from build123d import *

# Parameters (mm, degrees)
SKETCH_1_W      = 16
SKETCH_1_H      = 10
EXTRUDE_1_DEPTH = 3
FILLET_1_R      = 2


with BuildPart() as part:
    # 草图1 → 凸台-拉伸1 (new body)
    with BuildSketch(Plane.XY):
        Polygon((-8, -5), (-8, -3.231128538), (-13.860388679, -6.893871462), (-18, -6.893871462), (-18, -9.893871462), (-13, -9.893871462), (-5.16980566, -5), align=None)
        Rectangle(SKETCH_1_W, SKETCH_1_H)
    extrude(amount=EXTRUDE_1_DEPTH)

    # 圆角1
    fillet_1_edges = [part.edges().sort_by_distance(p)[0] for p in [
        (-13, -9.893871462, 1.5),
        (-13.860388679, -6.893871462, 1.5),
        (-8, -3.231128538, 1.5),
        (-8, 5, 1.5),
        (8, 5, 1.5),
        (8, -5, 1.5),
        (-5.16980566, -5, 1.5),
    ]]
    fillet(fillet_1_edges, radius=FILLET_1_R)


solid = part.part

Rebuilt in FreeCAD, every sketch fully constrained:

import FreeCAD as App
import Part
import Sketcher
from FreeCAD import Vector
Q = App.Units.Quantity


def edges_at(feature, points):
    """Names of the edges that pass closest to the given points."""
    edges = feature.Shape.Edges
    near = lambda p: min(range(len(edges)), key=lambda i: edges[i].distToShape(Part.Vertex(*p))[0])
    return sorted({f"Edge{near(p) + 1}" for p in points})

doc = App.newDocument("Part")
body = doc.addObject("PartDesign::Body", "Body")

# Sketch on XY plane
sketch1 = body.newObject("Sketcher::SketchObject", "Sketch")
sketch1.AttachmentSupport = (doc.getObject("XY_Plane"), [""])
sketch1.MapMode = "FlatFace"
sketch1.addGeometry([
    Part.LineSegment(Vector(-8, -3.231129, 0), Vector(-13.860389, -6.893871, 0)),  # 0
    Part.LineSegment(Vector(-13.860389, -6.893871, 0), Vector(-18, -6.893871, 0)),  # 1
    Part.LineSegment(Vector(-18, -6.893871, 0), Vector(-18, -9.893871, 0)),  # 2
    Part.LineSegment(Vector(-18, -9.893871, 0), Vector(-13, -9.893871, 0)),  # 3
    Part.LineSegment(Vector(-13, -9.893871, 0), Vector(-5.169806, -5, 0)),  # 4
    Part.LineSegment(Vector(-5.169806, -5, 0), Vector(8, -5, 0)),  # 5
    Part.LineSegment(Vector(8, -5, 0), Vector(8, 5, 0)),  # 6
    Part.LineSegment(Vector(8, 5, 0), Vector(-8, 5, 0)),  # 7
    Part.LineSegment(Vector(-8, 5, 0), Vector(-8, -3.231129, 0)),  # 8
], False)
sketch1.addConstraint([
    Sketcher.Constraint("Coincident", 0, 2, 1, 1),
    Sketcher.Constraint("Coincident", 1, 2, 2, 1),
    Sketcher.Constraint("Coincident", 2, 2, 3, 1),
    Sketcher.Constraint("Coincident", 3, 2, 4, 1),
    Sketcher.Constraint("Coincident", 4, 2, 5, 1),
    Sketcher.Constraint("Coincident", 5, 2, 6, 1),
    Sketcher.Constraint("Coincident", 6, 2, 7, 1),
    Sketcher.Constraint("Coincident", 7, 2, 8, 1),
    Sketcher.Constraint("Coincident", 8, 2, 0, 1),
    Sketcher.Constraint("Horizontal", 1),
    Sketcher.Constraint("Vertical", 2),
    Sketcher.Constraint("Horizontal", 3),
    Sketcher.Constraint("Horizontal", 5),
    Sketcher.Constraint("Vertical", 6),
    Sketcher.Constraint("Horizontal", 7),
    Sketcher.Constraint("Vertical", 8),
    Sketcher.Constraint("Symmetric", 5, 2, 7, 2, -1, 1),
    Sketcher.Constraint("Parallel", 0, 4),
    Sketcher.Constraint("DistanceX", 3, 1, 3, 2, Q("5 mm")),
    Sketcher.Constraint("DistanceX", 7, 2, 7, 1, Q("16 mm")),
    Sketcher.Constraint("DistanceY", 2, 2, 2, 1, Q("3 mm")),
    Sketcher.Constraint("DistanceY", 6, 1, 6, 2, Q("10 mm")),
    Sketcher.Constraint("DistanceX", 1, 2, -1, 1, Q("18 mm")),
    Sketcher.Constraint("DistanceX", 1, 2, 1, 1, Q("4.139611 mm")),
    Sketcher.Constraint("DistanceY", 8, 2, 8, 1, Q("8.231129 mm")),
    Sketcher.Constraint("Distance", 0, Q("6.91085 mm")),
])
pad1 = body.newObject("PartDesign::Pad", "Pad")
pad1.Profile = sketch1
pad1.Length = 3
doc.recompute()

fillet = body.newObject("PartDesign::Fillet", "Fillet")
fillet.Base = (pad1, edges_at(pad1, [
    (-13, -9.894, 1.5),
    (-13.86, -6.894, 1.5),
    (-8, -3.231, 1.5),
    (-8, 5, 1.5),
    (8, 5, 1.5),
    (8, -5, 1.5),
    (-5.17, -5, 1.5),
]))
fillet.Radius = 2

doc.recompute()
